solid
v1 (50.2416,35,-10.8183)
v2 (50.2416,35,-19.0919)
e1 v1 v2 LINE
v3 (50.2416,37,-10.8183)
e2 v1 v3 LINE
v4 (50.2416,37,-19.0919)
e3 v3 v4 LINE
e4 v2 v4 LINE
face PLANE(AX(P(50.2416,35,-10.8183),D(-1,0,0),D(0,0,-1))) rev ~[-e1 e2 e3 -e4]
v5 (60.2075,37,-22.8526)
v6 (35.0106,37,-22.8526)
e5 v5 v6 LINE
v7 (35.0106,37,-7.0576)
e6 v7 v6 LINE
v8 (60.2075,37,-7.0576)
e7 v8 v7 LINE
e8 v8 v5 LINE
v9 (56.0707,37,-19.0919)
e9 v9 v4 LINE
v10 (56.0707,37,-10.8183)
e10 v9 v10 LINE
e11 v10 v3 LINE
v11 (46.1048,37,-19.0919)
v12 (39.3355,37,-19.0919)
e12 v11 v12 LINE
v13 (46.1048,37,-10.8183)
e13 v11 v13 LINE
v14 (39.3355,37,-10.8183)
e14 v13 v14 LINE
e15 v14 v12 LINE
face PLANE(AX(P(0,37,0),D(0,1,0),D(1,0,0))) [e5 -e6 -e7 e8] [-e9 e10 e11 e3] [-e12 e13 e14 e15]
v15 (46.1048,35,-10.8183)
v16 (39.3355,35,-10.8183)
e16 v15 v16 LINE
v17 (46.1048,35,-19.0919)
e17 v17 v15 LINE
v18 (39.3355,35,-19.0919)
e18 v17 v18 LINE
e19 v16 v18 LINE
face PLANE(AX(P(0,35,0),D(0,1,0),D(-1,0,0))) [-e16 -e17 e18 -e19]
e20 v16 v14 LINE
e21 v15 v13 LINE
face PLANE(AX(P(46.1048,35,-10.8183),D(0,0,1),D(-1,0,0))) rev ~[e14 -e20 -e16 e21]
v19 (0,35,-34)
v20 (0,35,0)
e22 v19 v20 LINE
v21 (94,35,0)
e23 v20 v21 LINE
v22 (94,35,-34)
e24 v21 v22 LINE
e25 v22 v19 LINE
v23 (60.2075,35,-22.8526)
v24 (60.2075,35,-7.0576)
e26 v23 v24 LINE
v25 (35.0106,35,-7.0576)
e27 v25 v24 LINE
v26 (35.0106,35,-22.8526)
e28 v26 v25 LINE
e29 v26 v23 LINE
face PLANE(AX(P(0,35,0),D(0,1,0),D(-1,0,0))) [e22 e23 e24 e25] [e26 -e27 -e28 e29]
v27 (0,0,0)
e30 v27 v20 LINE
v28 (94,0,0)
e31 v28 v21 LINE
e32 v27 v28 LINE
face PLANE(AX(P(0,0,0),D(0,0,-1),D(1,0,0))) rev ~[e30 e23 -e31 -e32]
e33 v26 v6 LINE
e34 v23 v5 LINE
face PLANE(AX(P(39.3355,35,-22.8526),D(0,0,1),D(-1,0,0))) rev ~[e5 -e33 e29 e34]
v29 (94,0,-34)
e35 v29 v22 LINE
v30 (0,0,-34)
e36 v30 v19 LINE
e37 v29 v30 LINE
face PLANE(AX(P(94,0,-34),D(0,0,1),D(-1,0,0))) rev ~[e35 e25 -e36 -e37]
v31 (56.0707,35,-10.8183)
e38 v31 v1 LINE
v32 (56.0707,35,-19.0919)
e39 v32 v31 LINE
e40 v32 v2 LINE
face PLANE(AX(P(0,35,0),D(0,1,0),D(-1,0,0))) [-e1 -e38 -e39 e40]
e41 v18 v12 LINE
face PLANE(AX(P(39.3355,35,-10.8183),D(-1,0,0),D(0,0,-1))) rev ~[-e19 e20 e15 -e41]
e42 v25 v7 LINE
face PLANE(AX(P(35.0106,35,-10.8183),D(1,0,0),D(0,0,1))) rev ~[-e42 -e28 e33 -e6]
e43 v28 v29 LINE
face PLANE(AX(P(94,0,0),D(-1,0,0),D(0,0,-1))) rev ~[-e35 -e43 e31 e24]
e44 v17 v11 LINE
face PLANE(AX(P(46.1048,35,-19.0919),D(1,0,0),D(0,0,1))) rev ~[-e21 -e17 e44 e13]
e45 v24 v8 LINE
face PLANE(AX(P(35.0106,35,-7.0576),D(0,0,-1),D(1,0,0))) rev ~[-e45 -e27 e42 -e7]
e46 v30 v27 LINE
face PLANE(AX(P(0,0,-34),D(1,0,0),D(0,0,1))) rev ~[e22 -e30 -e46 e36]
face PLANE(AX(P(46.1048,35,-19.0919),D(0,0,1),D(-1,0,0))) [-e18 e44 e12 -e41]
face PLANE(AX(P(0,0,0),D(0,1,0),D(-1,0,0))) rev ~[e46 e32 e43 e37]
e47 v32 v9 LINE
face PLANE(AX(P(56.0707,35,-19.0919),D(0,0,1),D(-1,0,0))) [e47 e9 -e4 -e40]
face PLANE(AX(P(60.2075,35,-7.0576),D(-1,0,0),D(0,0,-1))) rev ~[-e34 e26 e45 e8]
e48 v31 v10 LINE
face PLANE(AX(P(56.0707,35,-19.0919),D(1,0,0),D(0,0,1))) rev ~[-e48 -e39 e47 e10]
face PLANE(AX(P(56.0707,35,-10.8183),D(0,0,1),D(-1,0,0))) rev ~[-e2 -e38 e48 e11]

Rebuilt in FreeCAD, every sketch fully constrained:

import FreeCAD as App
import Part
import Sketcher
Q = App.Units.Quantity


def add_polygon(sketch, points):
    """Adds a closed chain of lines whose ends are joined by coincident constraints."""
    first, n = sketch.GeometryCount, len(points)
    for a, b in zip(points, points[1:] + points[:1]):
        sketch.addGeometry(Part.LineSegment(App.Vector(*a, 0), App.Vector(*b, 0)), False)
    for i in range(n):
        sketch.addConstraint(Sketcher.Constraint("Coincident", first + i, 2, first + (i + 1) % n, 1))

doc = App.newDocument("Part")
params = doc.addObject("Spreadsheet::Sheet", "Params")
for row, (alias, value) in enumerate([
    ("sketch1_width", "94 mm"),
    ("sketch1_height", "34 mm"),
    ("pad1_length", "35 mm"),
    ("pad2_length", "2 mm"),
], start=1):
    params.set(f"A{row}", alias)
    params.set(f"B{row}", "=" + value)
    params.setAlias(f"B{row}", alias)

body = doc.addObject("PartDesign::Body", "Body")

# Sketch on XZ plane
sketch1 = body.newObject("Sketcher::SketchObject", "Sketch")
sketch1.AttachmentSupport = (doc.getObject("XZ_Plane"), [""])
sketch1.MapMode = "FlatFace"
add_polygon(sketch1, [(0, -34), (0, 0), (94, 0), (94, -34)])  # lines 0-3
sketch1.addConstraint([
    Sketcher.Constraint("Vertical", 0),
    Sketcher.Constraint("Horizontal", 1),
    Sketcher.Constraint("Vertical", 2),
    Sketcher.Constraint("Horizontal", 3),
    Sketcher.Constraint("Coincident", 0, 2, -1, 1),
    Sketcher.Constraint("DistanceX", 1, 1, 1, 2, Q("94 mm")),
    Sketcher.Constraint("DistanceY", 0, 1, 0, 2, Q("34 mm")),
])
sketch1.setExpression("Constraints[9]", "Params.sketch1_width")
sketch1.setExpression("Constraints[10]", "Params.sketch1_height")
pad1 = body.newObject("PartDesign::Pad", "Pad")
pad1.Profile = sketch1
pad1.setExpression("Length", "Params.pad1_length")
pad1.Reversed = True

# Sketch on XZ plane
sketch2 = body.newObject("Sketcher::SketchObject", "Sketch001")
sketch2.AttachmentSupport = (doc.getObject("XZ_Plane"), [""])
sketch2.MapMode = "FlatFace"
sketch2.AttachmentOffset = App.Placement(App.Vector(0, 0, -35), App.Rotation())
add_polygon(sketch2, [(35.0106, -7.0576), (60.2075, -7.0576), (60.2075, -22.8526), (35.0106, -22.8526)])  # lines 0-3
add_polygon(sketch2, [(39.3355, -10.8183), (39.3355, -19.0919), (46.1048, -19.0919), (46.1048, -10.8183)])  # lines 4-7
add_polygon(sketch2, [(50.2416, -10.8183), (50.2416, -19.0919), (56.0707, -19.0919), (56.0707, -10.8183)])  # lines 8-11
sketch2.addConstraint([
    Sketcher.Constraint("Horizontal", 0),
    Sketcher.Constraint("Vertical", 1),
    Sketcher.Constraint("Horizontal", 2),
    Sketcher.Constraint("Vertical", 3),
    Sketcher.Constraint("Vertical", 4),
    Sketcher.Constraint("Horizontal", 5),
    Sketcher.Constraint("Vertical", 6),
    Sketcher.Constraint("Horizontal", 7),
    Sketcher.Constraint("Vertical", 8),
    Sketcher.Constraint("Horizontal", 9),
    Sketcher.Constraint("Vertical", 10),
    Sketcher.Constraint("Horizontal", 11),
    Sketcher.Constraint("Horizontal", 5, 2, 8, 2),
    Sketcher.Constraint("Horizontal", 7, 2, 10, 2),
    Sketcher.Constraint("DistanceX", 0, 1, 0, 2, Q("25.197 mm")),
    Sketcher.Constraint("DistanceX", 9, 1, 9, 2, Q("5.829 mm")),
    Sketcher.Constraint("DistanceY", 1, 2, 1, 1, Q("15.795 mm")),
    Sketcher.Constraint("DistanceX", 5, 1, 5, 2, Q("6.7693 mm")),
    Sketcher.Constraint("DistanceY", 4, 2, 4, 1, Q("8.2736 mm")),
    Sketcher.Constraint("DistanceY", 4, 2, -1, 1, Q("19.092 mm")),
    Sketcher.Constraint("DistanceX", 2, 2, 4, 2, Q("4.325 mm")),
    Sketcher.Constraint("DistanceX", 8, 2, 1, 2, Q("9.966 mm")),
    Sketcher.Constraint("DistanceX", -1, 1, 0, 2, Q("60.2075 mm")),
    Sketcher.Constraint("DistanceY", 0, 2, -1, 1, Q("7.0576 mm")),
])
pad2 = body.newObject("PartDesign::Pad", "Pad001")
pad2.Profile = sketch2
pad2.setExpression("Length", "Params.pad2_length")
pad2.Reversed = True

doc.recompute()
